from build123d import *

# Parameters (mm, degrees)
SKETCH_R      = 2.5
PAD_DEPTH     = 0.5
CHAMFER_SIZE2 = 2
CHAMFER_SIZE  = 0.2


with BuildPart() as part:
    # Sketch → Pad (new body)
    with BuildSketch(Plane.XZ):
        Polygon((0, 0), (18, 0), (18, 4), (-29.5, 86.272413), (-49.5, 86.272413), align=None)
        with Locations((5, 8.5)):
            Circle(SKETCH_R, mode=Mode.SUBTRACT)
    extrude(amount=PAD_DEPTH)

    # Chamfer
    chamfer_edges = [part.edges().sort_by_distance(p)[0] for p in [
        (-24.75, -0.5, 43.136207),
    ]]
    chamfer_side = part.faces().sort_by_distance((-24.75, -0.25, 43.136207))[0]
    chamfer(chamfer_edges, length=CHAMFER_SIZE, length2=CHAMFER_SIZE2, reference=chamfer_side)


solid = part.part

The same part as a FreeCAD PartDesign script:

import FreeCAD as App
import Part
import Sketcher
Q = App.Units.Quantity


def edges_at(feature, points):
    """Names of the edges that pass closest to the given points."""
    edges = feature.Shape.Edges
    near = lambda p: min(range(len(edges)), key=lambda i: edges[i].distToShape(Part.Vertex(*p))[0])
    return sorted({f"Edge{near(p) + 1}" for p in points})

doc = App.newDocument("Part")
body = doc.addObject("PartDesign::Body", "Body")

sketch1 = body.newObject("Sketcher::SketchObject", "Sketch")
sketch1.AttachmentSupport = (doc.getObject("XZ_Plane"), [""])
sketch1.MapMode = "FlatFace"
sketch1.addGeometry([
    Part.LineSegment(App.Vector(0, 0, 0), App.Vector(18, 0, 0)),
    Part.LineSegment(App.Vector(18, 0, 0), App.Vector(18, 4, 0)),
    Part.LineSegment(App.Vector(18, 4, 0), App.Vector(-29.5, 86.3, 0)),
    Part.LineSegment(App.Vector(-29.5, 86.3, 0), App.Vector(-49.5, 86.3, 0)),
    Part.LineSegment(App.Vector(-49.5, 86.3, 0), App.Vector(0, 0, 0)),
    Part.Circle(App.Vector(5, 8.5, 0), App.Vector(0, 0, 1), 2.5),
], False)
sketch1.addConstraint([
    Sketcher.Constraint("Coincident", 0, 2, 1, 1),
    Sketcher.Constraint("Coincident", 1, 2, 2, 1),
    Sketcher.Constraint("Coincident", 2, 2, 3, 1),
    Sketcher.Constraint("Coincident", 3, 2, 4, 1),
    Sketcher.Constraint("Coincident", 4, 2, 0, 1),
    Sketcher.Constraint("Horizontal", 0),
    Sketcher.Constraint("Vertical", 1),
    Sketcher.Constraint("Horizontal", 3),
    Sketcher.Constraint("Coincident", 4, 2, -1, 1),
    Sketcher.Constraint("Diameter", 5, Q("5 mm")),
    Sketcher.Constraint("DistanceX", 0, 1, 0, 2, Q("18 mm")),
    Sketcher.Constraint("DistanceX", 3, 2, 3, 1, Q("20 mm")),
    Sketcher.Constraint("DistanceY", 1, 1, 1, 2, Q("4 mm")),
    Sketcher.Constraint("Angle", 2, Q("120 deg")),
    Sketcher.Constraint("Distance", 2, Q("95 mm")),
    Sketcher.Constraint("DistanceX", -1, 1, 5, 3, Q("5 mm")),
    Sketcher.Constraint("DistanceY", -1, 1, 5, 3, Q("8.5 mm")),
])
pad1 = body.newObject("PartDesign::Pad", "Pad")
pad1.Profile = sketch1
pad1.Length = 0.5
doc.recompute()

chamfer = body.newObject("PartDesign::Chamfer", "Chamfer")
chamfer.Base = (pad1, edges_at(pad1, [(-24.75, -0.5, 43.136)]))
chamfer.ChamferType = "Two distances"
chamfer.Size = 0.2
chamfer.Size2 = 2

doc.recompute()
